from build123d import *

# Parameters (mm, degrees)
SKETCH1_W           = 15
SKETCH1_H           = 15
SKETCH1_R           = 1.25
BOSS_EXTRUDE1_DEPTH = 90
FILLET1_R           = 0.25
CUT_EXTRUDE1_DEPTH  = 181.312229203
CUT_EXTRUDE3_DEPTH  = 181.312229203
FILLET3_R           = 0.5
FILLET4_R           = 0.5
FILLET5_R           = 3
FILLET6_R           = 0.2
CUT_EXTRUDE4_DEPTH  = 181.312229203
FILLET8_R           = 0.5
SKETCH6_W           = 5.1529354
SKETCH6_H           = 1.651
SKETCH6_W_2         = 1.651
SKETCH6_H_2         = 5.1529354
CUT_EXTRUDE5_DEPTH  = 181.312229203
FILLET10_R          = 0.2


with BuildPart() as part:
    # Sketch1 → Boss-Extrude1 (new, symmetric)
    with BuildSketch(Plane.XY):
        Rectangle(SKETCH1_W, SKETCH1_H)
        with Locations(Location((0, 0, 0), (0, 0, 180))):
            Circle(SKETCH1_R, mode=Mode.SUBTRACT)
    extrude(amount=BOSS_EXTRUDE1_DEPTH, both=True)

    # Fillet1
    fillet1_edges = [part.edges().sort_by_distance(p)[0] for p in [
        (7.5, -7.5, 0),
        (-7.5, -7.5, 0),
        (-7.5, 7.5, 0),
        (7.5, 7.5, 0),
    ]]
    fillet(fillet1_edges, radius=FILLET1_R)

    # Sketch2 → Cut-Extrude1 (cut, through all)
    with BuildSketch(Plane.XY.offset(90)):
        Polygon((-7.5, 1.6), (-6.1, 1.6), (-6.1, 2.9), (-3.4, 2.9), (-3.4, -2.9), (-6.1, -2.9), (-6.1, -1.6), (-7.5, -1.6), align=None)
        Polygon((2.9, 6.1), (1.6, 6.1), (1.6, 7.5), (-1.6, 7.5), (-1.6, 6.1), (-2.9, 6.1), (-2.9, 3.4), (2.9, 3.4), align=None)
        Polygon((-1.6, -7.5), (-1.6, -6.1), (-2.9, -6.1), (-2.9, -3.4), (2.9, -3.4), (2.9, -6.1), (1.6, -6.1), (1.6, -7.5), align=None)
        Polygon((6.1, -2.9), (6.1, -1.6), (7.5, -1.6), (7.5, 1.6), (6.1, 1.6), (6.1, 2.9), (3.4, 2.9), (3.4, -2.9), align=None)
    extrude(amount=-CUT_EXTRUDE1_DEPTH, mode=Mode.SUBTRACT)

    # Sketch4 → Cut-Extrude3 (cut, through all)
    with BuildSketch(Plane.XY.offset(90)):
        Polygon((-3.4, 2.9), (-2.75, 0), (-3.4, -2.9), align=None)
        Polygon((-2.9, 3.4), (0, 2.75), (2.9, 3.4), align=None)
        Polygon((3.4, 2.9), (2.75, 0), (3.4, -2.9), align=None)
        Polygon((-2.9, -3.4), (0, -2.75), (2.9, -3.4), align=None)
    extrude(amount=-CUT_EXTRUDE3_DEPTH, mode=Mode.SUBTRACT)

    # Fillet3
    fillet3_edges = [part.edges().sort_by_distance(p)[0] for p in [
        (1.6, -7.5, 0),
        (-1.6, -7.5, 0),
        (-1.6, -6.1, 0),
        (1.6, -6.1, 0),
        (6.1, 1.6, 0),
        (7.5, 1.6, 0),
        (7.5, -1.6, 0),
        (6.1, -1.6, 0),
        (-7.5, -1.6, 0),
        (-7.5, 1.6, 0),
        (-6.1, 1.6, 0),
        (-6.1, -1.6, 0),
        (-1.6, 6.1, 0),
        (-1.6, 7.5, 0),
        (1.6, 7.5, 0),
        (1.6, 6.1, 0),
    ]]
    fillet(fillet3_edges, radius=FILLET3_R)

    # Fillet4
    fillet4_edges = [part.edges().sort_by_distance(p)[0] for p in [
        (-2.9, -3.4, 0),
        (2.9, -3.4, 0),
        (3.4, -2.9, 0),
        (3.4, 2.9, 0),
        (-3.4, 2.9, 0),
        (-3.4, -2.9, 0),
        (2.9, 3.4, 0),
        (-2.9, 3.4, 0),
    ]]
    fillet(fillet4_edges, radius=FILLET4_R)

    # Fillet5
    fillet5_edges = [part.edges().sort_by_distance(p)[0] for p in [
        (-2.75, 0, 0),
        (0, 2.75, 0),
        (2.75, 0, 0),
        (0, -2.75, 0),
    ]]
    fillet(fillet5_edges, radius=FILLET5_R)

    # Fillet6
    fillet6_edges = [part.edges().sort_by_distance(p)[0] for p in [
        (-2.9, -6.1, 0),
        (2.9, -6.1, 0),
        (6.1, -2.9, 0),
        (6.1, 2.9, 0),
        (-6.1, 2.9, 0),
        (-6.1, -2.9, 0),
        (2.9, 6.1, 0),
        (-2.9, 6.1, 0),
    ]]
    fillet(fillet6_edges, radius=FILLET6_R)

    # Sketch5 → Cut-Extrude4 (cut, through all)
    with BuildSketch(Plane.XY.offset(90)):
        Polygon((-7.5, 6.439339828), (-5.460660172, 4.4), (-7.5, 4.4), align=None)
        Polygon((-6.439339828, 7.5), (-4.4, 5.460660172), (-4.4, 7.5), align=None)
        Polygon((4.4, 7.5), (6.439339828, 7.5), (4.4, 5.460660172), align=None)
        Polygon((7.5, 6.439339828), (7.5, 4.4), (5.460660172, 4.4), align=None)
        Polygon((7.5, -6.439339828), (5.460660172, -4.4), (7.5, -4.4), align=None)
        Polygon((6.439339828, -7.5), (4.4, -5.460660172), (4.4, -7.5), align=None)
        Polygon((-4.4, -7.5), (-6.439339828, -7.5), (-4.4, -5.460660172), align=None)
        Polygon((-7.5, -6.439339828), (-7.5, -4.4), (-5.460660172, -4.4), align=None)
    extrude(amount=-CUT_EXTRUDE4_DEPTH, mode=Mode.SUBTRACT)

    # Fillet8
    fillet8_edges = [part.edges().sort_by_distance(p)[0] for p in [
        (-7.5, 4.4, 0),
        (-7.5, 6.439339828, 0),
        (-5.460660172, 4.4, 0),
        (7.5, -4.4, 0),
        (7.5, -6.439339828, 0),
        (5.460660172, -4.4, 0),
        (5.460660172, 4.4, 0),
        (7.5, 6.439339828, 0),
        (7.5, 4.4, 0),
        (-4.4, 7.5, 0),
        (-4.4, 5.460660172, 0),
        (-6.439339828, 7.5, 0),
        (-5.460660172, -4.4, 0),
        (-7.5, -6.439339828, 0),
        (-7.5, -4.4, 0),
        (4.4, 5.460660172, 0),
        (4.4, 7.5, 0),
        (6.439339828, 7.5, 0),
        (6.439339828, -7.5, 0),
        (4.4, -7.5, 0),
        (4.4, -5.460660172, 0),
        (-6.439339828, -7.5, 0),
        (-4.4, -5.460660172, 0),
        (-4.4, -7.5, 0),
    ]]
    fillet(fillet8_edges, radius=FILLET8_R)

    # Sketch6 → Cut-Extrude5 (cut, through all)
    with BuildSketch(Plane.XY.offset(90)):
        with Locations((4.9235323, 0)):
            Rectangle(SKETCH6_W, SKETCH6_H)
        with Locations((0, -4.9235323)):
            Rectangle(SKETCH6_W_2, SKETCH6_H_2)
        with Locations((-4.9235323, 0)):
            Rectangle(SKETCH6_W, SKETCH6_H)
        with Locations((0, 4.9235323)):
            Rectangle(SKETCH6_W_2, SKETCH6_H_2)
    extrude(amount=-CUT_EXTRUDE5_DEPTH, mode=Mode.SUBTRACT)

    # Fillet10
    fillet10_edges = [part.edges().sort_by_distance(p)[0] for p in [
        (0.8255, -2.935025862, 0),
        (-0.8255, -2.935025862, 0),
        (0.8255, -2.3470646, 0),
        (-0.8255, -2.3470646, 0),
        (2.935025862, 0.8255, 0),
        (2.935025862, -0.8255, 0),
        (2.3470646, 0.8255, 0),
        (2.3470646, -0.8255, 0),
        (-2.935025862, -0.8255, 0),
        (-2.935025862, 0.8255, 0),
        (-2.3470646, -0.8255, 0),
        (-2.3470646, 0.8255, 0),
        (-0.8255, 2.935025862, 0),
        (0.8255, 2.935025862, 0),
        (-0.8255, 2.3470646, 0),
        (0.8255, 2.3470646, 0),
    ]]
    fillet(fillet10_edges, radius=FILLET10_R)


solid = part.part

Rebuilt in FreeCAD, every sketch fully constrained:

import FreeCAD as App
import Part
import Sketcher


def edges_at(feature, points):
    """Names of the edges that pass closest to the given points."""
    edges = feature.Shape.Edges
    near = lambda p: min(range(len(edges)), key=lambda i: edges[i].distToShape(Part.Vertex(*p))[0])
    return sorted({f"Edge{near(p) + 1}" for p in points})


def add_polygon(sketch, points):
    """Adds a closed chain of lines whose ends are joined by coincident constraints."""
    first, n = sketch.GeometryCount, len(points)
    for a, b in zip(points, points[1:] + points[:1]):
        sketch.addGeometry(Part.LineSegment(App.Vector(*a, 0), App.Vector(*b, 0)), False)
    for i in range(n):
        sketch.addConstraint(Sketcher.Constraint("Coincident", first + i, 2, first + (i + 1) % n, 1))

doc = App.newDocument("Part")
body = doc.addObject("PartDesign::Body", "Body")

# Sketch on XY plane
sketch1 = body.newObject("Sketcher::SketchObject", "Sketch")
sketch1.AttachmentSupport = (doc.getObject("XY_Plane"), [""])
sketch1.MapMode = "FlatFace"
add_polygon(sketch1, [(-7.5, 7.5), (-7.5, -7.5), (7.5, -7.5), (7.5, 7.5)])  # lines 0-3
sketch1.addGeometry(Part.Circle(App.Vector(0, 0, 0), App.Vector(0, 0, 1), 1.2), False)  # 4
sketch1.addConstraint(Sketcher.Constraint("Vertical", 0))
sketch1.addConstraint(Sketcher.Constraint("Horizontal", 1))
sketch1.addConstraint(Sketcher.Constraint("Vertical", 2))
sketch1.addConstraint(Sketcher.Constraint("Horizontal", 3))
sketch1.addConstraint(Sketcher.Constraint("Coincident", 4, 3, -1, 1))
sketch1.addConstraint(Sketcher.Constraint("Symmetric", 0, 2, 2, 2, -1, 1))
sketch1.addConstraint(Sketcher.Constraint("Equal", 3, 0))
sketch1.addConstraint(Sketcher.Constraint("Diameter", 4, 2.5))
sketch1.addConstraint(Sketcher.Constraint("DistanceX", 1, 1, 1, 2, 15.0))
pad1 = body.newObject("PartDesign::Pad", "Pad")
pad1.Profile = sketch1
pad1.Length = 180
pad1.Midplane = True
doc.recompute()

fillet = body.newObject("PartDesign::Fillet", "Fillet")
fillet.Base = (pad1, edges_at(pad1, [
    (7.5, -7.5, 0),
    (-7.5, -7.5, 0),
    (-7.5, 7.5, 0),
    (7.5, 7.5, 0),
]))
fillet.Radius = 0.25

# Sketch on XY plane
sketch2 = body.newObject("Sketcher::SketchObject", "Sketch001")
sketch2.AttachmentSupport = (doc.getObject("XY_Plane"), [""])
sketch2.MapMode = "FlatFace"
sketch2.AttachmentOffset = App.Placement(App.Vector(0, 0, 90), App.Rotation())
add_polygon(sketch2, [(-6.1, 1.6), (-7.5, 1.6), (-7.5, -1.6), (-6.1, -1.6), (-6.1, -2.9), (-3.4, -2.9), (-3.4, 2.9), (-6.1, 2.9)])  # lines 0-7
add_polygon(sketch2, [(2.9, 6.1), (1.6, 6.1), (1.6, 7.5), (-1.6, 7.5), (-1.6, 6.1), (-2.9, 6.1), (-2.9, 3.4), (2.9, 3.4)])  # lines 8-15
add_polygon(sketch2, [(-1.6, -6.1), (-1.6, -7.5), (1.6, -7.5), (1.6, -6.1), (2.9, -6.1), (2.9, -3.4), (-2.9, -3.4), (-2.9, -6.1)])  # lines 16-23
add_polygon(sketch2, [(6.1, -2.9), (6.1, -1.6), (7.5, -1.6), (7.5, 1.6), (6.1, 1.6), (6.1, 2.9), (3.4, 2.9), (3.4, -2.9)])  # lines 24-31
sketch2.addConstraint(Sketcher.Constraint("Horizontal", 0))
sketch2.addConstraint(Sketcher.Constraint("Vertical", 1))
sketch2.addConstraint(Sketcher.Constraint("Horizontal", 2))
sketch2.addConstraint(Sketcher.Constraint("Vertical", 3))
sketch2.addConstraint(Sketcher.Constraint("Horizontal", 4))
sketch2.addConstraint(Sketcher.Constraint("Vertical", 5))
sketch2.addConstraint(Sketcher.Constraint("Horizontal", 6))
sketch2.addConstraint(Sketcher.Constraint("Vertical", 7))
sketch2.addConstraint(Sketcher.Constraint("Horizontal", 8))
sketch2.addConstraint(Sketcher.Constraint("Vertical", 9))
sketch2.addConstraint(Sketcher.Constraint("Horizontal", 10))
sketch2.addConstraint(Sketcher.Constraint("Vertical", 11))
sketch2.addConstraint(Sketcher.Constraint("Horizontal", 12))
sketch2.addConstraint(Sketcher.Constraint("Vertical", 13))
sketch2.addConstraint(Sketcher.Constraint("Horizontal", 14))
sketch2.addConstraint(Sketcher.Constraint("Vertical", 15))
sketch2.addConstraint(Sketcher.Constraint("Vertical", 16))
sketch2.addConstraint(Sketcher.Constraint("Horizontal", 17))
sketch2.addConstraint(Sketcher.Constraint("Vertical", 18))
sketch2.addConstraint(Sketcher.Constraint("Horizontal", 19))
sketch2.addConstraint(Sketcher.Constraint("Vertical", 20))
sketch2.addConstraint(Sketcher.Constraint("Horizontal", 21))
sketch2.addConstraint(Sketcher.Constraint("Vertical", 22))
sketch2.addConstraint(Sketcher.Constraint("Horizontal", 23))
sketch2.addConstraint(Sketcher.Constraint("Vertical", 24))
sketch2.addConstraint(Sketcher.Constraint("Horizontal", 25))
sketch2.addConstraint(Sketcher.Constraint("Vertical", 26))
sketch2.addConstraint(Sketcher.Constraint("Horizontal", 27))
sketch2.addConstraint(Sketcher.Constraint("Vertical", 28))
sketch2.addConstraint(Sketcher.Constraint("Horizontal", 29))
sketch2.addConstraint(Sketcher.Constraint("Vertical", 30))
sketch2.addConstraint(Sketcher.Constraint("Horizontal", 31))
sketch2.addConstraint(Sketcher.Constraint("Symmetric", 9, 2, 16, 2, -1, 1))
sketch2.addConstraint(Sketcher.Constraint("Symmetric", 11, 2, 18, 2, -1, 1))
sketch2.addConstraint(Sketcher.Constraint("Symmetric", 13, 2, 20, 2, -1, 1))
sketch2.addConstraint(Sketcher.Constraint("Symmetric", 15, 2, 22, 2, -1, 1))
sketch2.addConstraint(Sketcher.Constraint("Symmetric", 7, 2, 24, 2, -1, 1))
sketch2.addConstraint(Sketcher.Constraint("Symmetric", 1, 2, 26, 2, -1, 1))
sketch2.addConstraint(Sketcher.Constraint("Symmetric", 3, 2, 28, 2, -1, 1))
sketch2.addConstraint(Sketcher.Constraint("Symmetric", 5, 2, 30, 2, -1, 1))
sketch2.addConstraint(Sketcher.Constraint("Symmetric", 8, 2, 11, 2, -2))
sketch2.addConstraint(Sketcher.Constraint("Symmetric", 2, 2, 24, 2, -2))
sketch2.addConstraint(Sketcher.Constraint("Horizontal", 6, 2, 28, 2))
sketch2.addConstraint(Sketcher.Constraint("Vertical", 15, 2, 19, 2))
sketch2.addConstraint(Sketcher.Constraint("Equal", 17, 1))
sketch2.addConstraint(Sketcher.Constraint("Equal", 23, 3))
sketch2.addConstraint(Sketcher.Constraint("Equal", 27, 9))
sketch2.addConstraint(Sketcher.Constraint("Equal", 31, 13))
sketch2.addConstraint(Sketcher.Constraint("DistanceX", 0, 2, 0, 1, 1.4))
sketch2.addConstraint(Sketcher.Constraint("DistanceX", 4, 1, 4, 2, 2.7))
sketch2.addConstraint(Sketcher.Constraint("DistanceX", 8, 2, 8, 1, 1.3))
sketch2.addConstraint(Sketcher.Constraint("DistanceX", 10, 2, 10, 1, 3.2))
sketch2.addConstraint(Sketcher.Constraint("DistanceX", 5, 2, 8, 2, 5.0))
sketch2.addConstraint(Sketcher.Constraint("DistanceY", 4, 2, 8, 2, 9.0))
pocket1 = body.newObject("PartDesign::Pocket", "Pocket")
pocket1.Profile = sketch2
pocket1.Type = "ThroughAll"

# Sketch on XY plane
sketch3 = body.newObject("Sketcher::SketchObject", "Sketch002")
sketch3.AttachmentSupport = (doc.getObject("XY_Plane"), [""])
sketch3.MapMode = "FlatFace"
sketch3.AttachmentOffset = App.Placement(App.Vector(0, 0, 90), App.Rotation())
add_polygon(sketch3, [(-2.8, 0), (-3.4, 2.9), (-3.4, -2.9)])  # lines 0-2
add_polygon(sketch3, [(-2.9, 3.4), (0, 2.8), (2.9, 3.4)])  # lines 3-5
add_polygon(sketch3, [(3.4, 2.9), (2.8, 0), (3.4, -2.9)])  # lines 6-8
add_polygon(sketch3, [(0, -2.8), (-2.9, -3.4), (2.9, -3.4)])  # lines 9-11
sketch3.addConstraint(Sketcher.Constraint("Vertical", 1))
sketch3.addConstraint(Sketcher.Constraint("Horizontal", 5))
sketch3.addConstraint(Sketcher.Constraint("Vertical", 8))
sketch3.addConstraint(Sketcher.Constraint("Horizontal", 10))
sketch3.addConstraint(Sketcher.Constraint("Symmetric", 2, 2, 6, 2, -1, 1))
sketch3.addConstraint(Sketcher.Constraint("Symmetric", 0, 2, 7, 2, -1, 1))
sketch3.addConstraint(Sketcher.Constraint("Symmetric", 4, 2, 9, 2, -1, 1))
sketch3.addConstraint(Sketcher.Constraint("Symmetric", 3, 2, 11, 2, -1, 1))
sketch3.addConstraint(Sketcher.Constraint("PointOnObject", 2, 2, -1))
sketch3.addConstraint(Sketcher.Constraint("PointOnObject", 3, 2, -2))
sketch3.addConstraint(Sketcher.Constraint("Perpendicular", 2, 3))
sketch3.addConstraint(Sketcher.Constraint("Perpendicular", 0, 4))
sketch3.addConstraint(Sketcher.Constraint("Perpendicular", 3, 6))
sketch3.addConstraint(Sketcher.Constraint("Perpendicular", 6, 11))
sketch3.addConstraint(Sketcher.Constraint("Horizontal", 1, 2, 7, 2))
sketch3.addConstraint(Sketcher.Constraint("Equal", 10, 1))
sketch3.addConstraint(Sketcher.Constraint("DistanceX", 5, 2, 5, 1, 5.8))
sketch3.addConstraint(Sketcher.Constraint("DistanceX", 0, 2, -1, 1, 3.4))
sketch3.addConstraint(Sketcher.Constraint("DistanceY", -1, 1, 4, 2, 3.4))
sketch3.addConstraint(Sketcher.Constraint("DistanceX", 2, 2, 6, 2, 5.5))
pocket2 = body.newObject("PartDesign::Pocket", "Pocket001")
pocket2.Profile = sketch3
pocket2.Type = "ThroughAll"
doc.recompute()

fillet2 = body.newObject("PartDesign::Fillet", "Fillet001")
fillet2.Base = (pocket2, edges_at(pocket2, [
    (1.6, -7.5, 0),
    (-1.6, -7.5, 0),
    (-1.6, -6.1, 0),
    (1.6, -6.1, 0),
    (6.1, 1.6, 0),
    (7.5, 1.6, 0),
    (7.5, -1.6, 0),
    (6.1, -1.6, 0),
    (-7.5, -1.6, 0),
    (-7.5, 1.6, 0),
    (-6.1, 1.6, 0),
    (-6.1, -1.6, 0),
    (-1.6, 6.1, 0),
    (-1.6, 7.5, 0),
    (1.6, 7.5, 0),
    (1.6, 6.1, 0),
]))
fillet2.Radius = 0.5
doc.recompute()

fillet3 = body.newObject("PartDesign::Fillet", "Fillet002")
fillet3.Base = (fillet2, edges_at(fillet2, [
    (-2.9, -3.4, 0),
    (2.9, -3.4, 0),
    (3.4, -2.9, 0),
    (3.4, 2.9, 0),
    (-3.4, 2.9, 0),
    (-3.4, -2.9, 0),
    (2.9, 3.4, 0),
    (-2.9, 3.4, 0),
]))
fillet3.Radius = 0.5
doc.recompute()

fillet4 = body.newObject("PartDesign::Fillet", "Fillet003")
fillet4.Base = (fillet3, edges_at(fillet3, [
    (-2.75, 0, 0),
    (0, 2.75, 0),
    (2.75, 0, 0),
    (0, -2.75, 0),
]))
fillet4.Radius = 3
doc.recompute()

fillet5 = body.newObject("PartDesign::Fillet", "Fillet004")
fillet5.Base = (fillet4, edges_at(fillet4, [
    (-2.9, -6.1, 0),
    (2.9, -6.1, 0),
    (6.1, -2.9, 0),
    (6.1, 2.9, 0),
    (-6.1, 2.9, 0),
    (-6.1, -2.9, 0),
    (2.9, 6.1, 0),
    (-2.9, 6.1, 0),
]))
fillet5.Radius = 0.2

# Sketch on XY plane
sketch4 = body.newObject("Sketcher::SketchObject", "Sketch003")
sketch4.AttachmentSupport = (doc.getObject("XY_Plane"), [""])
sketch4.MapMode = "FlatFace"
sketch4.AttachmentOffset = App.Placement(App.Vector(0, 0, 90), App.Rotation())
add_polygon(sketch4, [(-5.5, 4.4), (-7.5, 6.4), (-7.5, 4.4)])  # lines 0-2
add_polygon(sketch4, [(-6.4, 7.5), (-4.4, 5.5), (-4.4, 7.5)])  # lines 3-5
add_polygon(sketch4, [(6.4, 7.5), (4.4, 7.5), (4.4, 5.5)])  # lines 6-8
add_polygon(sketch4, [(7.5, 4.4), (7.5, 6.4), (5.5, 4.4)])  # lines 9-11
add_polygon(sketch4, [(5.5, -4.4), (7.5, -6.4), (7.5, -4.4)])  # lines 12-14
add_polygon(sketch4, [(6.4, -7.5), (4.4, -5.5), (4.4, -7.5)])  # lines 15-17
add_polygon(sketch4, [(-6.4, -7.5), (-4.4, -7.5), (-4.4, -5.5)])  # lines 18-20
add_polygon(sketch4, [(-7.5, -4.4), (-7.5, -6.4), (-5.5, -4.4)])  # lines 21-23
sketch4.addConstraint(Sketcher.Constraint("Vertical", 1))
sketch4.addConstraint(Sketcher.Constraint("Horizontal", 2))
sketch4.addConstraint(Sketcher.Constraint("Vertical", 4))
sketch4.addConstraint(Sketcher.Constraint("Horizontal", 5))
sketch4.addConstraint(Sketcher.Constraint("Horizontal", 6))
sketch4.addConstraint(Sketcher.Constraint("Vertical", 7))
sketch4.addConstraint(Sketcher.Constraint("Vertical", 9))
sketch4.addConstraint(Sketcher.Constraint("Horizontal", 11))
sketch4.addConstraint(Sketcher.Constraint("Vertical", 13))
sketch4.addConstraint(Sketcher.Constraint("Horizontal", 14))
sketch4.addConstraint(Sketcher.Constraint("Vertical", 16))
sketch4.addConstraint(Sketcher.Constraint("Horizontal", 17))
sketch4.addConstraint(Sketcher.Constraint("Horizontal", 18))
sketch4.addConstraint(Sketcher.Constraint("Vertical", 19))
sketch4.addConstraint(Sketcher.Constraint("Vertical", 21))
sketch4.addConstraint(Sketcher.Constraint("Horizontal", 23))
sketch4.addConstraint(Sketcher.Constraint("Symmetric", 0, 2, 12, 2, -1, 1))
sketch4.addConstraint(Sketcher.Constraint("Symmetric", 2, 2, 14, 2, -1, 1))
sketch4.addConstraint(Sketcher.Constraint("Symmetric", 3, 2, 15, 2, -1, 1))
sketch4.addConstraint(Sketcher.Constraint("Symmetric", 5, 2, 17, 2, -1, 1))
sketch4.addConstraint(Sketcher.Constraint("Symmetric", 6, 2, 18, 2, -1, 1))
sketch4.addConstraint(Sketcher.Constraint("Symmetric", 9, 2, 21, 2, -1, 1))
sketch4.addConstraint(Sketcher.Constraint("Symmetric", 10, 2, 22, 2, -1, 1))
sketch4.addConstraint(Sketcher.Constraint("Symmetric", 4, 2, 6, 2, -2))
sketch4.addConstraint(Sketcher.Constraint("Symmetric", 0, 2, 9, 2, -2))
sketch4.addConstraint(Sketcher.Constraint("Symmetric", 2, 2, 10, 2, -2))
sketch4.addConstraint(Sketcher.Constraint("Parallel", 0, 3))
sketch4.addConstraint(Sketcher.Constraint("Perpendicular", 3, 8))
sketch4.addConstraint(Sketcher.Constraint("Parallel", 8, 10))
sketch4.addConstraint(Sketcher.Constraint("Perpendicular", 15, 20))
sketch4.addConstraint(Sketcher.Constraint("Horizontal", 3, 2, 7, 2))
sketch4.addConstraint(Sketcher.Constraint("Horizontal", 15, 2, 19, 2))
sketch4.addConstraint(Sketcher.Constraint("Equal", 2, 5))
sketch4.addConstraint(Sketcher.Constraint("DistanceX", 0, 2, -1, 1, 7.5))
sketch4.addConstraint(Sketcher.Constraint("DistanceY", -1, 1, 1, 2, 4.4))
sketch4.addConstraint(Sketcher.Constraint("DistanceX", 3, 2, -1, 1, 4.4))
sketch4.addConstraint(Sketcher.Constraint("DistanceY", -1, 1, 4, 2, 7.5))
sketch4.addConstraint(Sketcher.Constraint("DistanceX", 2, 1, 2, 2, 2.03934))
pocket3 = body.newObject("PartDesign::Pocket", "Pocket002")
pocket3.Profile = sketch4
pocket3.Type = "ThroughAll"
doc.recompute()

fillet6 = body.newObject("PartDesign::Fillet", "Fillet005")
fillet6.Base = (pocket3, edges_at(pocket3, [
    (-7.5, 4.4, 0),
    (-7.5, 6.439, 0),
    (-5.461, 4.4, 0),
    (7.5, -4.4, 0),
    (7.5, -6.439, 0),
    (5.461, -4.4, 0),
    (5.461, 4.4, 0),
    (7.5, 6.439, 0),
    (7.5, 4.4, 0),
    (-4.4, 7.5, 0),
    (-4.4, 5.461, 0),
    (-6.439, 7.5, 0),
    (-5.461, -4.4, 0),
    (-7.5, -6.439, 0),
    (-7.5, -4.4, 0),
    (4.4, 5.461, 0),
    (4.4, 7.5, 0),
    (6.439, 7.5, 0),
    (6.439, -7.5, 0),
    (4.4, -7.5, 0),
    (4.4, -5.461, 0),
    (-6.439, -7.5, 0),
    (-4.4, -5.461, 0),
    (-4.4, -7.5, 0),
]))
fillet6.Radius = 0.5

# Sketch on XY plane
sketch5 = body.newObject("Sketcher::SketchObject", "Sketch004")
sketch5.AttachmentSupport = (doc.getObject("XY_Plane"), [""])
sketch5.MapMode = "FlatFace"
sketch5.AttachmentOffset = App.Placement(App.Vector(0, 0, 90), App.Rotation())
add_polygon(sketch5, [(2.3, 0.8), (2.3, -0.8), (7.5, -0.8), (7.5, 0.8)])  # lines 0-3
add_polygon(sketch5, [(-0.8, -2.3), (-0.8, -7.5), (0.8, -7.5), (0.8, -2.3)])  # lines 4-7
add_polygon(sketch5, [(-7.5, 0.8), (-7.5, -0.8), (-2.3, -0.8), (-2.3, 0.8)])  # lines 8-11
add_polygon(sketch5, [(-0.8, 7.5), (-0.8, 2.3), (0.8, 2.3), (0.8, 7.5)])  # lines 12-15
sketch5.addConstraint(Sketcher.Constraint("Vertical", 0))
sketch5.addConstraint(Sketcher.Constraint("Horizontal", 1))
sketch5.addConstraint(Sketcher.Constraint("Vertical", 2))
sketch5.addConstraint(Sketcher.Constraint("Horizontal", 3))
sketch5.addConstraint(Sketcher.Constraint("Vertical", 4))
sketch5.addConstraint(Sketcher.Constraint("Horizontal", 5))
sketch5.addConstraint(Sketcher.Constraint("Vertical", 6))
sketch5.addConstraint(Sketcher.Constraint("Horizontal", 7))
sketch5.addConstraint(Sketcher.Constraint("Vertical", 8))
sketch5.addConstraint(Sketcher.Constraint("Horizontal", 9))
sketch5.addConstraint(Sketcher.Constraint("Vertical", 10))
sketch5.addConstraint(Sketcher.Constraint("Horizontal", 11))
sketch5.addConstraint(Sketcher.Constraint("Vertical", 12))
sketch5.addConstraint(Sketcher.Constraint("Horizontal", 13))
sketch5.addConstraint(Sketcher.Constraint("Vertical", 14))
sketch5.addConstraint(Sketcher.Constraint("Horizontal", 15))
sketch5.addConstraint(Sketcher.Constraint("Symmetric", 2, 2, 8, 2, -1, 1))
sketch5.addConstraint(Sketcher.Constraint("Symmetric", 0, 2, 10, 2, -1, 1))
sketch5.addConstraint(Sketcher.Constraint("Symmetric", 6, 2, 12, 2, -1, 1))
sketch5.addConstraint(Sketcher.Constraint("Symmetric", 4, 2, 14, 2, -1, 1))
sketch5.addConstraint(Sketcher.Constraint("Horizontal", 1, 2, 8, 2))
sketch5.addConstraint(Sketcher.Constraint("Vertical", 7, 2, 12, 2))
sketch5.addConstraint(Sketcher.Constraint("Equal", 15, 0))
sketch5.addConstraint(Sketcher.Constraint("Equal", 11, 4))
sketch5.addConstraint(Sketcher.Constraint("DistanceX", -1, 1, 1, 2, 7.5))
sketch5.addConstraint(Sketcher.Constraint("DistanceY", 4, 2, -1, 1, 7.5))
sketch5.addConstraint(Sketcher.Constraint("DistanceX", 5, 1, 5, 2, 1.651))
sketch5.addConstraint(Sketcher.Constraint("DistanceX", 1, 1, 1, 2, 5.152935))
pocket4 = body.newObject("PartDesign::Pocket", "Pocket003")
pocket4.Profile = sketch5
pocket4.Type = "ThroughAll"
doc.recompute()

fillet7 = body.newObject("PartDesign::Fillet", "Fillet006")
fillet7.Base = (pocket4, edges_at(pocket4, [
    (0.826, -2.935, 0),
    (-0.826, -2.935, 0),
    (0.826, -2.347, 0),
    (-0.826, -2.347, 0),
    (2.935, 0.826, 0),
    (2.935, -0.826, 0),
    (2.347, 0.826, 0),
    (2.347, -0.826, 0),
    (-2.935, -0.826, 0),
    (-2.935, 0.826, 0),
    (-2.347, -0.826, 0),
    (-2.347, 0.826, 0),
    (-0.826, 2.935, 0),
    (0.826, 2.935, 0),
    (-0.826, 2.347, 0),
    (0.826, 2.347, 0),
]))
fillet7.Radius = 0.2

doc.recompute()
